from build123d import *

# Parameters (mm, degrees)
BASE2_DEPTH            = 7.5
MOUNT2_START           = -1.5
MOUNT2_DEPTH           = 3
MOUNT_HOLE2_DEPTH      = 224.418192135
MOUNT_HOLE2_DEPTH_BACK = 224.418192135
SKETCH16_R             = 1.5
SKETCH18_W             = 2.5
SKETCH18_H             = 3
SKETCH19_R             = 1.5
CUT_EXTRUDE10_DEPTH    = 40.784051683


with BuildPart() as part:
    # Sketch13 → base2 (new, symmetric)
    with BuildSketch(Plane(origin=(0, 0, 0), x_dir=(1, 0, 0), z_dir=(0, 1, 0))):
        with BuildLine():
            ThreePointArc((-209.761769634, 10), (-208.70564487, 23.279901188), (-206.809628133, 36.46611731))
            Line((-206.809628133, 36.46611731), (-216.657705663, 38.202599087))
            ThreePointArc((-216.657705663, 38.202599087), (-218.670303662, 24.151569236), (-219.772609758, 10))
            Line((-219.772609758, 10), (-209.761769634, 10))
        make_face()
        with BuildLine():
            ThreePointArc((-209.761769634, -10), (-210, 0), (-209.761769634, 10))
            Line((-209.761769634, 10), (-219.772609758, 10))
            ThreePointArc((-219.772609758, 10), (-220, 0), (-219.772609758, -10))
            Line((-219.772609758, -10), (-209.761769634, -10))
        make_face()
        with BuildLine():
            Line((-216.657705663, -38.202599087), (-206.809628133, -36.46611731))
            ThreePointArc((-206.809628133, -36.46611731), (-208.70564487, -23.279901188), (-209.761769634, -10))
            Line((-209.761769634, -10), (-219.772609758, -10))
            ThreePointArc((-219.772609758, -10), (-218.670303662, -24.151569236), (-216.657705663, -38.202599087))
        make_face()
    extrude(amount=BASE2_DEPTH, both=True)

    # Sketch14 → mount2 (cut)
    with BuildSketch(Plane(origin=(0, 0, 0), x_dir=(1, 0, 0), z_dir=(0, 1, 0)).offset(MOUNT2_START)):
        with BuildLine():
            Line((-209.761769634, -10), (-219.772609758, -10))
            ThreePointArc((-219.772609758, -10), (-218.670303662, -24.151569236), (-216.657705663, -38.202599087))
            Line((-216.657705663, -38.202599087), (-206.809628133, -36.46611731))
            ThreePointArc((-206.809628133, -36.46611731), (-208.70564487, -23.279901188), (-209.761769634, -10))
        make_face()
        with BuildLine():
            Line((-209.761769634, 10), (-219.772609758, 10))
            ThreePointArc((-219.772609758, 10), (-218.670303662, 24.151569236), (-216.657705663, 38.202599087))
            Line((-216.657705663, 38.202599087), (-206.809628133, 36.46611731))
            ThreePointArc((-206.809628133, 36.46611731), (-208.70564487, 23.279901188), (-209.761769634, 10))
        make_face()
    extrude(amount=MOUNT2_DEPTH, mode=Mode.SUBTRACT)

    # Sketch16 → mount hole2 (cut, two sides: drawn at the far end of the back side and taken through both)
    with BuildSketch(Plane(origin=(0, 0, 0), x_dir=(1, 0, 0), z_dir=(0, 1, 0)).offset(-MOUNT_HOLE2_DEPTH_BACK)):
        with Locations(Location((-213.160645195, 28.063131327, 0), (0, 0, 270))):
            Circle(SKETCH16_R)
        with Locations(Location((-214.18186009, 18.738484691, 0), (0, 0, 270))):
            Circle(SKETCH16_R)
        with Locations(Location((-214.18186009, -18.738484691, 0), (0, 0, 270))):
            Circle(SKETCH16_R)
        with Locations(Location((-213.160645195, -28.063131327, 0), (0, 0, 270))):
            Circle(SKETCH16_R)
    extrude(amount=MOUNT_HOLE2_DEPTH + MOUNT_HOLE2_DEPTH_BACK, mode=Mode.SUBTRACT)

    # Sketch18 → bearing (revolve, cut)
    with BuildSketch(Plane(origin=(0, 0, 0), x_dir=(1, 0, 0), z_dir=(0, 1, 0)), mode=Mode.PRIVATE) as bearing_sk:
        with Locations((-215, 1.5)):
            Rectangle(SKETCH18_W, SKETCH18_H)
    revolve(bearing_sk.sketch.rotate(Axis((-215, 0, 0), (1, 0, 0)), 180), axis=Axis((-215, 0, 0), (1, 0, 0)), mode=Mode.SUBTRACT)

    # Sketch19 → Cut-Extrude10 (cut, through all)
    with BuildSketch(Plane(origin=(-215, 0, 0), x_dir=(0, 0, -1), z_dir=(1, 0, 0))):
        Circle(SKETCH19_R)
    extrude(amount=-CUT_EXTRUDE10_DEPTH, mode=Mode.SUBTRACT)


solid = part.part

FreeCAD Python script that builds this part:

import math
import FreeCAD as App
import Part
import Sketcher
from FreeCAD import Vector
Q = App.Units.Quantity


def add_polygon(sketch, points):
    """Adds a closed chain of lines whose ends are joined by coincident constraints."""
    first, n = sketch.GeometryCount, len(points)
    for a, b in zip(points, points[1:] + points[:1]):
        sketch.addGeometry(Part.LineSegment(App.Vector(*a, 0), App.Vector(*b, 0)), False)
    for i in range(n):
        sketch.addConstraint(Sketcher.Constraint("Coincident", first + i, 2, first + (i + 1) % n, 1))

doc = App.newDocument("Part")
body = doc.addObject("PartDesign::Body", "Body")

sketch1 = doc.addObject("Sketcher::SketchObject", "Sketch")
body.addObject(sketch1)
sketch1.AttachmentSupport = (doc.XZ_Plane, [""])
sketch1.MapMode = "FlatFace"
sketch1.addGeometry(Part.ArcOfCircle(Part.Circle(Vector(0, 0, 0), Vector(0, 0, 1), 210), math.radians(-177.27), math.radians(-170)), False)
sketch1.addGeometry(Part.LineSegment(Vector(-207, -36, 0), Vector(-217, -38, 0)), False)
sketch1.addGeometry(Part.ArcOfCircle(Part.Circle(Vector(0, 0, 0), Vector(0, 0, 1), 220), math.radians(-177.39), math.radians(-170)), False)
sketch1.addGeometry(Part.ArcOfCircle(Part.Circle(Vector(0, 0, 0), Vector(0, 0, 1), 220), math.radians(177.39), math.radians(182.61)), False)
sketch1.addGeometry(Part.ArcOfCircle(Part.Circle(Vector(0, 0, 0), Vector(0, 0, 1), 220), math.radians(170), math.radians(177.39)), False)
sketch1.addGeometry(Part.LineSegment(Vector(-217, 38, 0), Vector(-207, 36, 0)), False)
sketch1.addGeometry(Part.ArcOfCircle(Part.Circle(Vector(0, 0, 0), Vector(0, 0, 1), 210), math.radians(170), math.radians(177.27)), False)
sketch1.addGeometry(Part.ArcOfCircle(Part.Circle(Vector(0, 0, 0), Vector(0, 0, 1), 210), math.radians(177.27), math.radians(182.73)), False)
sketch1.addConstraint(Sketcher.Constraint("Coincident", 0, 2, 1, 1))
sketch1.addConstraint(Sketcher.Constraint("Coincident", 1, 2, 2, 2))
sketch1.addConstraint(Sketcher.Constraint("Tangent", 2, 1, 3, 2))
sketch1.addConstraint(Sketcher.Constraint("Tangent", 3, 1, 4, 2))
sketch1.addConstraint(Sketcher.Constraint("Coincident", 4, 1, 5, 1))
sketch1.addConstraint(Sketcher.Constraint("Coincident", 5, 2, 6, 1))
sketch1.addConstraint(Sketcher.Constraint("Tangent", 6, 2, 7, 1))
sketch1.addConstraint(Sketcher.Constraint("Tangent", 7, 2, 0, 1))
sketch1.addConstraint(Sketcher.Constraint("Coincident", 0, 3, -1, 1))
sketch1.addConstraint(Sketcher.Constraint("Coincident", 2, 3, -1, 1))
sketch1.addConstraint(Sketcher.Constraint("Coincident", 4, 3, -1, 1))
sketch1.addConstraint(Sketcher.Constraint("Coincident", 6, 3, -1, 1))
sketch1.addConstraint(Sketcher.Constraint("Horizontal", 3, 1, 6, 2))
sketch1.addConstraint(Sketcher.Constraint("Horizontal", 2, 1, 7, 2))
sketch1.addConstraint(Sketcher.Constraint("Vertical", 2, 1, 3, 1))
sketch1.addConstraint(Sketcher.Constraint("Vertical", 1, 2, 4, 1))
sketch1.addConstraint(Sketcher.Constraint("Vertical", 0, 2, 5, 2))
sketch1.addConstraint(Sketcher.Constraint("Radius", 0, 210.0))
sketch1.addConstraint(Sketcher.Constraint("Radius", 2, 220.0))
sketch1.addConstraint(Sketcher.Constraint("Angle", 1, Q("-170 deg")))
sketch1.addConstraint(Sketcher.Constraint("DistanceY", 2, 1, -1, 1, 10.0))
sketch1.addConstraint(Sketcher.Constraint("DistanceY", 1, 2, -1, 1, 38.202599))
pad1 = doc.addObject("PartDesign::Pad", "Pad")
body.addObject(pad1)
pad1.Profile = sketch1
pad1.Length = 15
pad1.Midplane = True

sketch2 = doc.addObject("Sketcher::SketchObject", "Sketch001")
body.addObject(sketch2)
sketch2.AttachmentSupport = (doc.XZ_Plane, [""])
sketch2.MapMode = "FlatFace"
sketch2.AttachmentOffset = App.Placement(Vector(0, 0, 1.5), App.Rotation())
sketch2.addGeometry(Part.LineSegment(Vector(-210, 10, 0), Vector(-220, 10, 0)), False)
sketch2.addGeometry(Part.ArcOfCircle(Part.Circle(Vector(0, 0, 0), Vector(0, 0, 1), 220), math.radians(170), math.radians(177.39)), False)
sketch2.addGeometry(Part.LineSegment(Vector(-217, 38, 0), Vector(-207, 36, 0)), False)
sketch2.addGeometry(Part.ArcOfCircle(Part.Circle(Vector(0, 0, 0), Vector(0, 0, 1), 210), math.radians(170), math.radians(177.27)), False)
sketch2.addGeometry(Part.LineSegment(Vector(-220, -10, 0), Vector(-210, -10, 0)), False)
sketch2.addGeometry(Part.ArcOfCircle(Part.Circle(Vector(0, 0, 0), Vector(0, 0, 1), 210), math.radians(-177.27), math.radians(-170)), False)
sketch2.addGeometry(Part.LineSegment(Vector(-207, -36, 0), Vector(-217, -38, 0)), False)
sketch2.addGeometry(Part.ArcOfCircle(Part.Circle(Vector(0, 0, 0), Vector(0, 0, 1), 220), math.radians(-177.39), math.radians(-170)), False)
sketch2.addConstraint(Sketcher.Constraint("Coincident", 0, 2, 1, 2))
sketch2.addConstraint(Sketcher.Constraint("Coincident", 1, 1, 2, 1))
sketch2.addConstraint(Sketcher.Constraint("Coincident", 2, 2, 3, 1))
sketch2.addConstraint(Sketcher.Constraint("Coincident", 3, 2, 0, 1))
sketch2.addConstraint(Sketcher.Constraint("Coincident", 4, 2, 5, 1))
sketch2.addConstraint(Sketcher.Constraint("Coincident", 5, 2, 6, 1))
sketch2.addConstraint(Sketcher.Constraint("Coincident", 6, 2, 7, 2))
sketch2.addConstraint(Sketcher.Constraint("Coincident", 7, 1, 4, 1))
sketch2.addConstraint(Sketcher.Constraint("Horizontal", 0))
sketch2.addConstraint(Sketcher.Constraint("Horizontal", 4))
sketch2.addConstraint(Sketcher.Constraint("Coincident", 1, 3, -1, 1))
sketch2.addConstraint(Sketcher.Constraint("Coincident", 3, 3, -1, 1))
sketch2.addConstraint(Sketcher.Constraint("Coincident", 5, 3, -1, 1))
sketch2.addConstraint(Sketcher.Constraint("Coincident", 7, 3, -1, 1))
sketch2.addConstraint(Sketcher.Constraint("Equal", 3, 5))
sketch2.addConstraint(Sketcher.Constraint("Equal", 1, 7))
sketch2.addConstraint(Sketcher.Constraint("Vertical", 3, 2, 4, 2))
sketch2.addConstraint(Sketcher.Constraint("Vertical", 2, 2, 5, 2))
sketch2.addConstraint(Sketcher.Constraint("Vertical", 1, 1, 6, 2))
sketch2.addConstraint(Sketcher.Constraint("Radius", 1, 220.0))
sketch2.addConstraint(Sketcher.Constraint("Radius", 3, 210.0))
sketch2.addConstraint(Sketcher.Constraint("Angle", 2, Q("-10 deg")))
sketch2.addConstraint(Sketcher.Constraint("DistanceY", -1, 1, 0, 2, 10.0))
sketch2.addConstraint(Sketcher.Constraint("DistanceY", -1, 1, 1, 1, 38.202599))
pocket1 = doc.addObject("PartDesign::Pocket", "Pocket")
body.addObject(pocket1)
pocket1.Profile = sketch2
pocket1.Length = 3

sketch3 = doc.addObject("Sketcher::SketchObject", "Sketch002")
body.addObject(sketch3)
sketch3.AttachmentSupport = (doc.XZ_Plane, [""])
sketch3.MapMode = "FlatFace"
sketch3.addGeometry(Part.Circle(Vector(-213.2, -28.1, 0), Vector(0, 0, 1), 1.5), False)
sketch3.addGeometry(Part.Circle(Vector(-214.2, -18.7, 0), Vector(0, 0, 1), 1.5), False)
sketch3.addGeometry(Part.Circle(Vector(-214.2, 18.7, 0), Vector(0, 0, 1), 1.5), False)
sketch3.addGeometry(Part.Circle(Vector(-213.2, 28.1, 0), Vector(0, 0, 1), 1.5), False)
sketch3.addConstraint(Sketcher.Constraint("Equal", 0, 1))
sketch3.addConstraint(Sketcher.Constraint("Equal", 1, 2))
sketch3.addConstraint(Sketcher.Constraint("Equal", 2, 3))
sketch3.addConstraint(Sketcher.Constraint("Symmetric", 1, 3, 2, 3, -1))
sketch3.addConstraint(Sketcher.Constraint("Symmetric", 0, 3, 3, 3, -1))
sketch3.addConstraint(Sketcher.Constraint("Diameter", 0, 3.0))
sketch3.addConstraint(Sketcher.Constraint("DistanceY", 0, 3, -1, 1, 28.063131))
sketch3.addConstraint(Sketcher.Constraint("DistanceX", 1, 3, -1, 1, 214.18186))
sketch3.addConstraint(Sketcher.Constraint("DistanceY", 1, 3, 2, 3, 37.476969))
sketch3.addConstraint(Sketcher.Constraint("DistanceX", 0, 3, -1, 1, 213.160645))
pocket2 = doc.addObject("PartDesign::Pocket", "Pocket001")
body.addObject(pocket2)
pocket2.Profile = sketch3
pocket2.Type = "ThroughAll"
pocket2.Midplane = True

sketch4 = doc.addObject("Sketcher::SketchObject", "Sketch003")
body.addObject(sketch4)
sketch4.AttachmentSupport = (doc.XZ_Plane, [""])
sketch4.MapMode = "FlatFace"
add_polygon(sketch4, [(-216.2, -3), (-216.2, 0), (-213.8, 0), (-213.8, -3)])
sketch4.addConstraint(Sketcher.Constraint("Vertical", 0))
sketch4.addConstraint(Sketcher.Constraint("Horizontal", 1))
sketch4.addConstraint(Sketcher.Constraint("Vertical", 2))
sketch4.addConstraint(Sketcher.Constraint("Horizontal", 3))
sketch4.addConstraint(Sketcher.Constraint("PointOnObject", 0, 2, -1))
sketch4.addConstraint(Sketcher.Constraint("DistanceY", 0, 1, 0, 2, 3.0))
sketch4.addConstraint(Sketcher.Constraint("DistanceX", 1, 1, 1, 2, 2.5))
sketch4.addConstraint(Sketcher.Constraint("DistanceX", 0, 2, -1, 1, 216.25))
groove = doc.addObject("PartDesign::Groove", "Groove")
body.addObject(groove)
groove.Profile = sketch4
groove.ReferenceAxis = (sketch4, ["H_Axis"])
groove.Angle = 360

sketch5 = doc.addObject("Sketcher::SketchObject", "Sketch004")
body.addObject(sketch5)
sketch5.AttachmentSupport = (doc.YZ_Plane, [""])
sketch5.MapMode = "FlatFace"
sketch5.AttachmentOffset = App.Placement(Vector(0, 0, -215), App.Rotation())
sketch5.addGeometry(Part.Circle(Vector(0, 0, 0), Vector(0, 0, 1), 1.5), False)
sketch5.addConstraint(Sketcher.Constraint("Coincident", 0, 3, -1, 1))
sketch5.addConstraint(Sketcher.Constraint("Diameter", 0, 3.0))
pocket3 = doc.addObject("PartDesign::Pocket", "Pocket002")
body.addObject(pocket3)
pocket3.Profile = sketch5
pocket3.Type = "ThroughAll"

doc.recompute()
